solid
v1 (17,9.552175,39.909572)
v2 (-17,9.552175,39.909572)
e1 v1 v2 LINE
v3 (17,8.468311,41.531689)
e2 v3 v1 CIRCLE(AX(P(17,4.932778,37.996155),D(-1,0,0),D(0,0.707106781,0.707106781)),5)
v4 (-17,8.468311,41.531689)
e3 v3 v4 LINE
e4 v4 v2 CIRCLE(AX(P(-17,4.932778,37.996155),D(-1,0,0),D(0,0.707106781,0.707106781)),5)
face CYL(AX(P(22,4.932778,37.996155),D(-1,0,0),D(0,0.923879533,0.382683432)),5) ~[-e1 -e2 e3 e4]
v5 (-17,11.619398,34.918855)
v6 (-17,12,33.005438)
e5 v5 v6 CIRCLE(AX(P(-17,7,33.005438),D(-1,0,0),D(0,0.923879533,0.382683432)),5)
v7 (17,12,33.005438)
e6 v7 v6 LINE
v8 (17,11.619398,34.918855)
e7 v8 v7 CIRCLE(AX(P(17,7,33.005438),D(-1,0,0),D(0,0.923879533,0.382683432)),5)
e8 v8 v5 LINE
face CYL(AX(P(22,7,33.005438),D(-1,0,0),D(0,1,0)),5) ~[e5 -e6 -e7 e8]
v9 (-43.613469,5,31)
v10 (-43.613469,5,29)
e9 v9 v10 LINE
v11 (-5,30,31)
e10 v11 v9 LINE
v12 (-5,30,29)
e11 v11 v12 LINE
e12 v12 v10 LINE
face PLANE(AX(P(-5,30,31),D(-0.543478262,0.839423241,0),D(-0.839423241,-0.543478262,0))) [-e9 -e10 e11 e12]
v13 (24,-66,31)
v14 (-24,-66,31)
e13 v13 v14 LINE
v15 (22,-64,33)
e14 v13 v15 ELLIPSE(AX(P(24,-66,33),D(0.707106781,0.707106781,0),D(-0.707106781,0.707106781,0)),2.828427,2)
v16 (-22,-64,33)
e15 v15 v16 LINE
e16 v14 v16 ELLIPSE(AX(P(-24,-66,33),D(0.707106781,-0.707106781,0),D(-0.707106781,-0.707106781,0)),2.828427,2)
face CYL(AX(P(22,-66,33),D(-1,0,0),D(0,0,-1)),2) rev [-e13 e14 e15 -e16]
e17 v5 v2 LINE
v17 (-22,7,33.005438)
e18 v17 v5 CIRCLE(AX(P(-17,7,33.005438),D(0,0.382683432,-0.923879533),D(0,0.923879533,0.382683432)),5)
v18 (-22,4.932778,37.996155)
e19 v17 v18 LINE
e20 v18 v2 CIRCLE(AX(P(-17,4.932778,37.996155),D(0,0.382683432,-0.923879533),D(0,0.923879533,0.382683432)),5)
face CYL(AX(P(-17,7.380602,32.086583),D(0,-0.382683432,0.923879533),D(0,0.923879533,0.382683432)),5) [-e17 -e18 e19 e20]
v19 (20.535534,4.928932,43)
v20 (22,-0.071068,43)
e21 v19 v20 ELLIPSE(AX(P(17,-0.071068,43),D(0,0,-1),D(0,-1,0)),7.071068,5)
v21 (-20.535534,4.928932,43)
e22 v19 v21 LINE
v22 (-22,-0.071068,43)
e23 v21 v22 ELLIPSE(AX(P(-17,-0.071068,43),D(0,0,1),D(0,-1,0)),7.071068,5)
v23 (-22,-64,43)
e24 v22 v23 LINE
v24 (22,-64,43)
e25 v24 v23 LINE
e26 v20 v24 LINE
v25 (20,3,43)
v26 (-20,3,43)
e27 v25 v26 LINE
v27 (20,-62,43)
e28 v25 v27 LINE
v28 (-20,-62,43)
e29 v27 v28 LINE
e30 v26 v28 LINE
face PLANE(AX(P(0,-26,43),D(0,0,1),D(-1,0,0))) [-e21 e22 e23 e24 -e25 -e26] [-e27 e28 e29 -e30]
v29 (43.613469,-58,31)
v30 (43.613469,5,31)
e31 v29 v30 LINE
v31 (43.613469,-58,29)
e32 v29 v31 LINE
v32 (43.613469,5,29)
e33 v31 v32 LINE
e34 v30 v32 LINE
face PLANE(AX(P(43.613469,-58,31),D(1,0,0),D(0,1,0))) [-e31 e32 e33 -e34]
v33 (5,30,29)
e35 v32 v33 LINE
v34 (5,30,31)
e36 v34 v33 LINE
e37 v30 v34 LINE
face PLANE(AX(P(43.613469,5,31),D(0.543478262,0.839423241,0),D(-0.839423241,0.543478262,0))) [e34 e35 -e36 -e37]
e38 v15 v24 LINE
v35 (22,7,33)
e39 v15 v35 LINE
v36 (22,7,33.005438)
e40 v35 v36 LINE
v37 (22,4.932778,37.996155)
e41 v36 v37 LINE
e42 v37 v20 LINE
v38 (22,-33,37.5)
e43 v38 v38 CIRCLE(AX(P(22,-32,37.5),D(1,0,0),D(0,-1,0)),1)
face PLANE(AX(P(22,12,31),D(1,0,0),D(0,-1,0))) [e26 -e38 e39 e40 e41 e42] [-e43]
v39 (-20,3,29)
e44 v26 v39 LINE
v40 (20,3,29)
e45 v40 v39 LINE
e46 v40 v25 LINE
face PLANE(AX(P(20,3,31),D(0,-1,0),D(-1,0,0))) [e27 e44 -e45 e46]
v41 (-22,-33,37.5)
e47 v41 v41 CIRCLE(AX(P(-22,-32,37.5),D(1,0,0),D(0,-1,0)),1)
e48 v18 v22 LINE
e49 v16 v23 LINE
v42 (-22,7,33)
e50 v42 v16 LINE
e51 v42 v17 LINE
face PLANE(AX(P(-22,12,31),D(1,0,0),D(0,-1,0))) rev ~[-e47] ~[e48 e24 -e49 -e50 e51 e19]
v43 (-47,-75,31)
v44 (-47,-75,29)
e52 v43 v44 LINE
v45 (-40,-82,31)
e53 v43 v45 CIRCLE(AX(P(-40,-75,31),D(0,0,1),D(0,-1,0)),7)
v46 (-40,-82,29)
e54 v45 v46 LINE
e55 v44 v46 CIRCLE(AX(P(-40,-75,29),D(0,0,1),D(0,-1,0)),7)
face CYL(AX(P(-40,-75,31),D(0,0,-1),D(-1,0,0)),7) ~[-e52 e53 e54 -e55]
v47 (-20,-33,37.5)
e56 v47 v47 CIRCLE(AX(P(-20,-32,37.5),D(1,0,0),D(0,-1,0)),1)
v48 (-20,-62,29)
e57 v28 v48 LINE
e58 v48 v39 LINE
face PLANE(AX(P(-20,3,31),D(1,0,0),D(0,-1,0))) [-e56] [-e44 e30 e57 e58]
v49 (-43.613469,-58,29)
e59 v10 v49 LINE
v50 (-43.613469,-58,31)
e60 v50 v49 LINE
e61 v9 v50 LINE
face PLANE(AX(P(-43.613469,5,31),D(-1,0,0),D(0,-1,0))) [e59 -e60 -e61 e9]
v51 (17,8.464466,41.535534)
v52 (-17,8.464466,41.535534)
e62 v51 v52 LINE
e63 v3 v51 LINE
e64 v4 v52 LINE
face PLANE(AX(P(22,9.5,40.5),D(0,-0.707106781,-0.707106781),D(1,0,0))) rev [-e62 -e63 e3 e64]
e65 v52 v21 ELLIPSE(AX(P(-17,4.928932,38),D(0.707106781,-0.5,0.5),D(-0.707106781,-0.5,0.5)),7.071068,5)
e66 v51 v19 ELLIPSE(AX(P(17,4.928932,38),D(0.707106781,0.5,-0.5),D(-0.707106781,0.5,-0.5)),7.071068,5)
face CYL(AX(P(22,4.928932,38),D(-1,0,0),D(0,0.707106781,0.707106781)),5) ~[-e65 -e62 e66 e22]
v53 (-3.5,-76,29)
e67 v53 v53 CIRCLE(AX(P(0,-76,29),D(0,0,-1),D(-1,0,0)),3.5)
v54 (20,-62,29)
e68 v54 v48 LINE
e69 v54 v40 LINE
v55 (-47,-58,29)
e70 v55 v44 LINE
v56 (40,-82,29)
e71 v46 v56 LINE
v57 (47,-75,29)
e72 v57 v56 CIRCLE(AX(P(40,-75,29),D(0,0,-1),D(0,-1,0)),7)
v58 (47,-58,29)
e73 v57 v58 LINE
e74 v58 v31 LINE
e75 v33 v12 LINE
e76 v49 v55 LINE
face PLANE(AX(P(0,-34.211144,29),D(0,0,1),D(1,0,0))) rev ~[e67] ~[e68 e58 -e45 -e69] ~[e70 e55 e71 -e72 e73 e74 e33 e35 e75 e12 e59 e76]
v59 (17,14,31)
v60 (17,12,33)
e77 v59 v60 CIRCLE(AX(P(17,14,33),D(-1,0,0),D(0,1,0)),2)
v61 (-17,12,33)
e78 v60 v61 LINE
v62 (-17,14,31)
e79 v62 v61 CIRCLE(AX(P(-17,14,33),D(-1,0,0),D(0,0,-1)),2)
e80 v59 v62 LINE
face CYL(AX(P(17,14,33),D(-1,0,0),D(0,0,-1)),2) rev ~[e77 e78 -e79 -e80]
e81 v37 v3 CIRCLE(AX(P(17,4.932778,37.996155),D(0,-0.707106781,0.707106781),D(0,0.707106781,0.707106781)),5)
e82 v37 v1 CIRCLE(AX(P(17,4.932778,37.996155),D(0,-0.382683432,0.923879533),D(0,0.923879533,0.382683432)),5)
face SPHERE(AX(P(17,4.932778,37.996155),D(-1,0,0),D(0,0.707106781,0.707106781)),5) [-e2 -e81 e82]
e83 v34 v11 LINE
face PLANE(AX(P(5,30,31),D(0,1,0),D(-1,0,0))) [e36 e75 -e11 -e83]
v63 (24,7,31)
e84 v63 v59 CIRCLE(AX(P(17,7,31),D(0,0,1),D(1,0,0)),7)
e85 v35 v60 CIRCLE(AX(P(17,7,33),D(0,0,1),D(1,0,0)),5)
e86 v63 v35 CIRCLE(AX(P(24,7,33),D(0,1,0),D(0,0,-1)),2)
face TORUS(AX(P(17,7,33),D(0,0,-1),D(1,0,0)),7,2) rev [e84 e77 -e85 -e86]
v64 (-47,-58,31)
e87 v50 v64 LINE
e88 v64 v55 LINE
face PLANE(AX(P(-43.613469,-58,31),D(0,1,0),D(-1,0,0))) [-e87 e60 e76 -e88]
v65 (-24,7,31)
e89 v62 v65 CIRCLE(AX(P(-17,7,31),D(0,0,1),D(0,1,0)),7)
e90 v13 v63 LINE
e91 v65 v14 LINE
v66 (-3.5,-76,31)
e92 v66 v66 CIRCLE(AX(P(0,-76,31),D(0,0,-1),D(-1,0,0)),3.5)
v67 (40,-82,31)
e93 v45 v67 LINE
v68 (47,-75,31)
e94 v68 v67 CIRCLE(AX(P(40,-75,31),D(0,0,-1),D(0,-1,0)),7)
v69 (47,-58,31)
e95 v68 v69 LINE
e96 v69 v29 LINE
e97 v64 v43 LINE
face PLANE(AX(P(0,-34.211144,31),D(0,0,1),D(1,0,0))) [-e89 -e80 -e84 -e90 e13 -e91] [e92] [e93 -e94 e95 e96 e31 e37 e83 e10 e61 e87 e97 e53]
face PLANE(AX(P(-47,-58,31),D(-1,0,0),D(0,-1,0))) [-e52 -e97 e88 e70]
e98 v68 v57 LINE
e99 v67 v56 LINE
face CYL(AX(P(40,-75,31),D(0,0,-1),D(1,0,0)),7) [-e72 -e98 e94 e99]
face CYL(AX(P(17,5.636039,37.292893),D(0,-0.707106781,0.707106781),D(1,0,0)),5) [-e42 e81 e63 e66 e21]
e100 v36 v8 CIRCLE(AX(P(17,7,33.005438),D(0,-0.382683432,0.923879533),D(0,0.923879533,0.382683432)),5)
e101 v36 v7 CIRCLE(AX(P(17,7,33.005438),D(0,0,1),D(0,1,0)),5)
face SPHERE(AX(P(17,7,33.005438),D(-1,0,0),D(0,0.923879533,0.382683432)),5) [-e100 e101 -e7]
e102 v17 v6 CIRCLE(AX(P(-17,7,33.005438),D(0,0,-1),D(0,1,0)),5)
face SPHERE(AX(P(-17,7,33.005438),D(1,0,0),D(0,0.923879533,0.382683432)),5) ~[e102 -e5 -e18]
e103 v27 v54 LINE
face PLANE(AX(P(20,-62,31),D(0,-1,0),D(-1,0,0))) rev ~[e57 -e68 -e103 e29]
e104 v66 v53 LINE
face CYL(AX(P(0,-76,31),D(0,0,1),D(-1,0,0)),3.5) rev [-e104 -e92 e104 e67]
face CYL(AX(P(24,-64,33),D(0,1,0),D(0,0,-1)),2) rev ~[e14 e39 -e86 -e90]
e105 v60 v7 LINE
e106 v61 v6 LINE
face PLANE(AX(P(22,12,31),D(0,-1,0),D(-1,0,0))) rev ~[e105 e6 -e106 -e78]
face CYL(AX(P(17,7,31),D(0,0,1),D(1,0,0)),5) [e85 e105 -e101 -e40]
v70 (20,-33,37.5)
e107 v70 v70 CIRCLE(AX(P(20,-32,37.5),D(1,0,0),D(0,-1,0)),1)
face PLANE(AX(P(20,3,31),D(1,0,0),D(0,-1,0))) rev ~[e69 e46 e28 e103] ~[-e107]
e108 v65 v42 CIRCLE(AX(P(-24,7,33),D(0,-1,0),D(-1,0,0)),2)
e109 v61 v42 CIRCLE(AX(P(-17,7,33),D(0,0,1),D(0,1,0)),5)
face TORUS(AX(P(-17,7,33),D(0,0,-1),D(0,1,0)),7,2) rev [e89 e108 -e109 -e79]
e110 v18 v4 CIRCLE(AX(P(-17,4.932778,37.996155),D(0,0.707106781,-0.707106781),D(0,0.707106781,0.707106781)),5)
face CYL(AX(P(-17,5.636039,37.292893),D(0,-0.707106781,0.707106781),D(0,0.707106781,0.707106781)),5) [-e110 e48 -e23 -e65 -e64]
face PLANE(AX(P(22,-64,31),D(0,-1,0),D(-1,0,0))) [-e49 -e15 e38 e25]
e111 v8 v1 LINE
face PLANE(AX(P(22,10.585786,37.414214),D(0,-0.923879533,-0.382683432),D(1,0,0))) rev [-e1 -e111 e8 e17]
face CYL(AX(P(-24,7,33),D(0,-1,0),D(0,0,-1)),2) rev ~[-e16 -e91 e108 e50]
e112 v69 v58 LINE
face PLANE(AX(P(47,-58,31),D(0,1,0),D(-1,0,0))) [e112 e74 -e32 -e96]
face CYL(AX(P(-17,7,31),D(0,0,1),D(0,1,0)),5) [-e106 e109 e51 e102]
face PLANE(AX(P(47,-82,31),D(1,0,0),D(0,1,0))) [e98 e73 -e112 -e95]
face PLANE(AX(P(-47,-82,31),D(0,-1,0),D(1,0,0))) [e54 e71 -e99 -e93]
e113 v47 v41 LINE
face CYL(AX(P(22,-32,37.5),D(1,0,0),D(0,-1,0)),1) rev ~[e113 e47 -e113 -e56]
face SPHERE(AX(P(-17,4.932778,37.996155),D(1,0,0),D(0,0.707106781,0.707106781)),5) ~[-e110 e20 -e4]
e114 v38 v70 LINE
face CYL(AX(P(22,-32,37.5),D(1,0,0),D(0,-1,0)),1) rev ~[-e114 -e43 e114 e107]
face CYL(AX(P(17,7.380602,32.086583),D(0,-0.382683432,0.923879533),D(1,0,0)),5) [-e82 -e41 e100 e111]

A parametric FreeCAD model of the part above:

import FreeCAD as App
import Part
import Sketcher
Q = App.Units.Quantity


def edges_at(feature, points):
    """Names of the edges that pass closest to the given points."""
    edges = feature.Shape.Edges
    near = lambda p: min(range(len(edges)), key=lambda i: edges[i].distToShape(Part.Vertex(*p))[0])
    return sorted({f"Edge{near(p) + 1}" for p in points})

doc = App.newDocument("Part")
params = doc.addObject("Spreadsheet::Sheet", "Params")
for row, (alias, value) in enumerate([
    ("sketch1_diameter", "7 mm"),
    ("sketch1_width", "10 mm"),
    ("sketch1_width2", "94 mm"),
    ("sketch1_width3", "40 mm"),
    ("sketch1_height", "63 mm"),
    ("pad1_length", "2 mm"),
    ("sketch2_width", "44 mm"),
    ("sketch2_width2", "40 mm"),
    ("sketch2_height", "76 mm"),
    ("sketch2_height2", "65 mm"),
    ("pad2_length", "12 mm"),
    ("sketch3_diameter", "2 mm"),
    ("pocket1_length", "44 mm"),
    ("chamfer_size", "5 mm"),
    ("chamfer2_size", "4 mm"),
    ("fillet_radius", "5 mm"),
    ("fillet2_radius", "7 mm"),
    ("fillet3_radius", "2 mm"),
], start=1):
    params.set(f"A{row}", alias)
    params.set(f"B{row}", "=" + value)
    params.setAlias(f"B{row}", alias)

body = doc.addObject("PartDesign::Body", "Body")

# Sketch on XZ plane
sketch1 = body.newObject("Sketcher::SketchObject", "Sketch")
sketch1.AttachmentSupport = (doc.getObject("XZ_Plane"), [""])
sketch1.MapMode = "FlatFace"
sketch1.addGeometry(Part.LineSegment(App.Vector(5, 30, 0), App.Vector(-5, 30, 0)), False)
sketch1.addGeometry(Part.LineSegment(App.Vector(-5, 30, 0), App.Vector(-43.613469, 5, 0)), False)
sketch1.addGeometry(Part.LineSegment(App.Vector(-43.613469, 5, 0), App.Vector(-43.613469, -58, 0)), False)
sketch1.addGeometry(Part.LineSegment(App.Vector(-43.613469, -58, 0), App.Vector(-47, -58, 0)), False)
sketch1.addGeometry(Part.LineSegment(App.Vector(-47, -58, 0), App.Vector(-47, -82, 0)), False)
sketch1.addGeometry(Part.LineSegment(App.Vector(-47, -82, 0), App.Vector(47, -82, 0)), False)
sketch1.addGeometry(Part.LineSegment(App.Vector(47, -82, 0), App.Vector(47, -58, 0)), False)
sketch1.addGeometry(Part.LineSegment(App.Vector(47, -58, 0), App.Vector(43.613469, -58, 0)), False)
sketch1.addGeometry(Part.LineSegment(App.Vector(43.613469, -58, 0), App.Vector(43.613469, 5, 0)), False)
sketch1.addGeometry(Part.LineSegment(App.Vector(43.613469, 5, 0), App.Vector(5, 30, 0)), False)
sketch1.addGeometry(Part.Circle(App.Vector(0, -76, 0), App.Vector(0, 0, 1), 3.5), False)
sketch1.addGeometry(Part.LineSegment(App.Vector(-20, -62, 0), App.Vector(-20, 3, 0)), False)
sketch1.addGeometry(Part.LineSegment(App.Vector(-20, 3, 0), App.Vector(20, 3, 0)), False)
sketch1.addGeometry(Part.LineSegment(App.Vector(20, 3, 0), App.Vector(20, -62, 0)), False)
sketch1.addGeometry(Part.LineSegment(App.Vector(20, -62, 0), App.Vector(-20, -62, 0)), False)
sketch1.addConstraint(Sketcher.Constraint("Coincident", 0, 2, 1, 1))
sketch1.addConstraint(Sketcher.Constraint("Coincident", 1, 2, 2, 1))
sketch1.addConstraint(Sketcher.Constraint("Coincident", 2, 2, 3, 1))
sketch1.addConstraint(Sketcher.Constraint("Coincident", 3, 2, 4, 1))
sketch1.addConstraint(Sketcher.Constraint("Coincident", 4, 2, 5, 1))
sketch1.addConstraint(Sketcher.Constraint("Coincident", 5, 2, 6, 1))
sketch1.addConstraint(Sketcher.Constraint("Coincident", 6, 2, 7, 1))
sketch1.addConstraint(Sketcher.Constraint("Coincident", 7, 2, 8, 1))
sketch1.addConstraint(Sketcher.Constraint("Coincident", 8, 2, 9, 1))
sketch1.addConstraint(Sketcher.Constraint("Coincident", 9, 2, 0, 1))
sketch1.addConstraint(Sketcher.Constraint("Coincident", 11, 2, 12, 1))
sketch1.addConstraint(Sketcher.Constraint("Coincident", 12, 2, 13, 1))
sketch1.addConstraint(Sketcher.Constraint("Coincident", 13, 2, 14, 1))
sketch1.addConstraint(Sketcher.Constraint("Coincident", 14, 2, 11, 1))
sketch1.addConstraint(Sketcher.Constraint("Horizontal", 0))
sketch1.addConstraint(Sketcher.Constraint("Vertical", 2))
sketch1.addConstraint(Sketcher.Constraint("Horizontal", 3))
sketch1.addConstraint(Sketcher.Constraint("Vertical", 4))
sketch1.addConstraint(Sketcher.Constraint("Horizontal", 5))
sketch1.addConstraint(Sketcher.Constraint("Vertical", 6))
sketch1.addConstraint(Sketcher.Constraint("Horizontal", 7))
sketch1.addConstraint(Sketcher.Constraint("Vertical", 8))
sketch1.addConstraint(Sketcher.Constraint("Vertical", 11))
sketch1.addConstraint(Sketcher.Constraint("Horizontal", 12))
sketch1.addConstraint(Sketcher.Constraint("Vertical", 13))
sketch1.addConstraint(Sketcher.Constraint("Horizontal", 14))
sketch1.addConstraint(Sketcher.Constraint("Symmetric", 3, 2, 6, 2, -2))
sketch1.addConstraint(Sketcher.Constraint("Symmetric", 1, 2, 8, 2, -2))
sketch1.addConstraint(Sketcher.Constraint("PointOnObject", 10, 3, -2))
sketch1.addConstraint(Sketcher.Constraint("Equal", 1, 9))
sketch1.addConstraint(Sketcher.Constraint("Diameter", 10, Q("7 mm")))
sketch1.addConstraint(Sketcher.Constraint("DistanceX", 0, 2, 0, 1, Q("10 mm")))
sketch1.addConstraint(Sketcher.Constraint("DistanceX", 5, 1, 5, 2, Q("94 mm")))
sketch1.addConstraint(Sketcher.Constraint("DistanceX", 12, 1, 12, 2, Q("40 mm")))
sketch1.addConstraint(Sketcher.Constraint("DistanceY", 2, 2, 2, 1, Q("63 mm")))
sketch1.addConstraint(Sketcher.Constraint("DistanceY", 4, 2, 4, 1, Q("24 mm")))
sketch1.addConstraint(Sketcher.Constraint("DistanceY", 11, 1, 11, 2, Q("65 mm")))
sketch1.addConstraint(Sketcher.Constraint("Distance", 1, Q("46 mm")))
sketch1.addConstraint(Sketcher.Constraint("DistanceY", 10, 3, -1, 1, Q("76 mm")))
sketch1.addConstraint(Sketcher.Constraint("DistanceY", -1, 1, 0, 2, Q("30 mm")))
sketch1.addConstraint(Sketcher.Constraint("DistanceY", -1, 1, 1, 2, Q("5 mm")))
sketch1.addConstraint(Sketcher.Constraint("DistanceX", 11, 2, -1, 1, Q("20 mm")))
sketch1.addConstraint(Sketcher.Constraint("DistanceY", -1, 1, 11, 2, Q("3 mm")))
sketch1.setExpression("Constraints[30]", "Params.sketch1_diameter")
sketch1.setExpression("Constraints[31]", "Params.sketch1_width")
sketch1.setExpression("Constraints[32]", "Params.sketch1_width2")
sketch1.setExpression("Constraints[33]", "Params.sketch1_width3")
sketch1.setExpression("Constraints[34]", "Params.sketch1_height")
pad1 = body.newObject("PartDesign::Pad", "Pad")
pad1.Profile = sketch1
pad1.setExpression("Length", "Params.pad1_length")

# Sketch on XZ plane
sketch2 = body.newObject("Sketcher::SketchObject", "Sketch001")
sketch2.AttachmentSupport = (doc.getObject("XZ_Plane"), [""])
sketch2.MapMode = "FlatFace"
sketch2.addGeometry(Part.LineSegment(App.Vector(-22, -64, 0), App.Vector(-22, 12, 0)), False)
sketch2.addGeometry(Part.LineSegment(App.Vector(-22, 12, 0), App.Vector(22, 12, 0)), False)
sketch2.addGeometry(Part.LineSegment(App.Vector(22, 12, 0), App.Vector(22, -64, 0)), False)
sketch2.addGeometry(Part.LineSegment(App.Vector(22, -64, 0), App.Vector(-22, -64, 0)), False)
sketch2.addGeometry(Part.LineSegment(App.Vector(20, 3, 0), App.Vector(-20, 3, 0)), False)
sketch2.addGeometry(Part.LineSegment(App.Vector(-20, 3, 0), App.Vector(-20, -62, 0)), False)
sketch2.addGeometry(Part.LineSegment(App.Vector(-20, -62, 0), App.Vector(20, -62, 0)), False)
sketch2.addGeometry(Part.LineSegment(App.Vector(20, -62, 0), App.Vector(20, 3, 0)), False)
sketch2.addConstraint(Sketcher.Constraint("Coincident", 0, 2, 1, 1))
sketch2.addConstraint(Sketcher.Constraint("Coincident", 1, 2, 2, 1))
sketch2.addConstraint(Sketcher.Constraint("Coincident", 2, 2, 3, 1))
sketch2.addConstraint(Sketcher.Constraint("Coincident", 3, 2, 0, 1))
sketch2.addConstraint(Sketcher.Constraint("Coincident", 4, 2, 5, 1))
sketch2.addConstraint(Sketcher.Constraint("Coincident", 5, 2, 6, 1))
sketch2.addConstraint(Sketcher.Constraint("Coincident", 6, 2, 7, 1))
sketch2.addConstraint(Sketcher.Constraint("Coincident", 7, 2, 4, 1))
sketch2.addConstraint(Sketcher.Constraint("Vertical", 0))
sketch2.addConstraint(Sketcher.Constraint("Horizontal", 1))
sketch2.addConstraint(Sketcher.Constraint("Vertical", 2))
sketch2.addConstraint(Sketcher.Constraint("Horizontal", 3))
sketch2.addConstraint(Sketcher.Constraint("Horizontal", 4))
sketch2.addConstraint(Sketcher.Constraint("Vertical", 5))
sketch2.addConstraint(Sketcher.Constraint("Horizontal", 6))
sketch2.addConstraint(Sketcher.Constraint("Vertical", 7))
sketch2.addConstraint(Sketcher.Constraint("DistanceX", 1, 1, 1, 2, Q("44 mm")))
sketch2.addConstraint(Sketcher.Constraint("DistanceX", 4, 2, 4, 1, Q("40 mm")))
sketch2.addConstraint(Sketcher.Constraint("DistanceY", 0, 1, 0, 2, Q("76 mm")))
sketch2.addConstraint(Sketcher.Constraint("DistanceY", 5, 2, 5, 1, Q("65 mm")))
sketch2.addConstraint(Sketcher.Constraint("DistanceX", 0, 2, -1, 1, Q("22 mm")))
sketch2.addConstraint(Sketcher.Constraint("DistanceY", -1, 1, 0, 2, Q("12 mm")))
sketch2.addConstraint(Sketcher.Constraint("DistanceX", 4, 2, -1, 1, Q("20 mm")))
sketch2.addConstraint(Sketcher.Constraint("DistanceY", -1, 1, 4, 2, Q("3 mm")))
sketch2.setExpression("Constraints[16]", "Params.sketch2_width")
sketch2.setExpression("Constraints[17]", "Params.sketch2_width2")
sketch2.setExpression("Constraints[18]", "Params.sketch2_height")
sketch2.setExpression("Constraints[19]", "Params.sketch2_height2")
pad2 = body.newObject("PartDesign::Pad", "Pad001")
pad2.Profile = sketch2
pad2.setExpression("Length", "Params.pad2_length")
pad2.Reversed = True

# Sketch on YZ plane
sketch3 = body.newObject("Sketcher::SketchObject", "Sketch002")
sketch3.AttachmentSupport = (doc.getObject("YZ_Plane"), [""])
sketch3.MapMode = "FlatFace"
sketch3.AttachmentOffset = App.Placement(App.Vector(0, 0, -22), App.Rotation())
sketch3.addGeometry(Part.Circle(App.Vector(6.5, -32, 0), App.Vector(0, 0, 1), 1), False)
sketch3.addConstraint(Sketcher.Constraint("Diameter", 0, Q("2 mm")))
sketch3.addConstraint(Sketcher.Constraint("DistanceY", 0, 3, -1, 1, Q("32 mm")))
sketch3.addConstraint(Sketcher.Constraint("DistanceX", -1, 1, 0, 3, Q("6.5 mm")))
sketch3.setExpression("Constraints[0]", "Params.sketch3_diameter")
pocket1 = body.newObject("PartDesign::Pocket", "Pocket")
pocket1.Profile = sketch3
pocket1.setExpression("Length", "Params.pocket1_length")
pocket1.Reversed = True
doc.recompute()

chamfer = body.newObject("PartDesign::Chamfer", "Chamfer")
chamfer.Base = (pocket1, edges_at(pocket1, [(0, 12, 12)]))
chamfer.setExpression("Size", "Params.chamfer_size")
doc.recompute()

chamfer2 = body.newObject("PartDesign::Chamfer", "Chamfer001")
chamfer2.Base = (chamfer, edges_at(chamfer, [(0, 7, 12)]))
chamfer2.setExpression("Size", "Params.chamfer2_size")
doc.recompute()

fillet = body.newObject("PartDesign::Fillet", "Fillet")
fillet.Base = (chamfer2, edges_at(chamfer2, [
    (0, 3, 12),
    (0, 9.828, 9.172),
    (0, 12, 7),
    (-22, 10.914, 8.086),
    (-22, 6.414, 10.586),
    (-22, 1.5, 12),
    (22, 10.914, 8.086),
    (22, 6.414, 10.586),
    (22, 1.5, 12),
]))
fillet.setExpression("Radius", "Params.fillet_radius")
doc.recompute()

fillet2 = body.newObject("PartDesign::Fillet", "Fillet001")
fillet2.Base = (fillet, edges_at(fillet, [(47, -1, -82), (-47, -1, -82)]))
fillet2.setExpression("Radius", "Params.fillet2_radius")
doc.recompute()

fillet3 = body.newObject("PartDesign::Fillet", "Fillet002")
fillet3.Base = (fillet2, edges_at(fillet2, [(0, 0, -64), (0, 0, 12)]))
fillet3.setExpression("Radius", "Params.fillet3_radius")
body2 = doc.addObject("PartDesign::Body", "Body001")
doc.recompute()

body.Placement = App.Placement(App.Vector(0, 0, 0), App.Rotation(App.Vector(1, 0, 0), 90))
boolean = body2.newObject("PartDesign::Boolean", "Boolean")
boolean.Type = "Fuse"
boolean.addObjects([body])
body3 = doc.addObject("PartDesign::Body", "Body002")
doc.recompute()

body2.Placement = App.Placement(App.Vector(0, 0, 31), App.Rotation(App.Vector(0, 0, 1), 180))
boolean2 = body3.newObject("PartDesign::Boolean", "Boolean001")
boolean2.Type = "Fuse"
boolean2.addObjects([body2])

doc.recompute()
